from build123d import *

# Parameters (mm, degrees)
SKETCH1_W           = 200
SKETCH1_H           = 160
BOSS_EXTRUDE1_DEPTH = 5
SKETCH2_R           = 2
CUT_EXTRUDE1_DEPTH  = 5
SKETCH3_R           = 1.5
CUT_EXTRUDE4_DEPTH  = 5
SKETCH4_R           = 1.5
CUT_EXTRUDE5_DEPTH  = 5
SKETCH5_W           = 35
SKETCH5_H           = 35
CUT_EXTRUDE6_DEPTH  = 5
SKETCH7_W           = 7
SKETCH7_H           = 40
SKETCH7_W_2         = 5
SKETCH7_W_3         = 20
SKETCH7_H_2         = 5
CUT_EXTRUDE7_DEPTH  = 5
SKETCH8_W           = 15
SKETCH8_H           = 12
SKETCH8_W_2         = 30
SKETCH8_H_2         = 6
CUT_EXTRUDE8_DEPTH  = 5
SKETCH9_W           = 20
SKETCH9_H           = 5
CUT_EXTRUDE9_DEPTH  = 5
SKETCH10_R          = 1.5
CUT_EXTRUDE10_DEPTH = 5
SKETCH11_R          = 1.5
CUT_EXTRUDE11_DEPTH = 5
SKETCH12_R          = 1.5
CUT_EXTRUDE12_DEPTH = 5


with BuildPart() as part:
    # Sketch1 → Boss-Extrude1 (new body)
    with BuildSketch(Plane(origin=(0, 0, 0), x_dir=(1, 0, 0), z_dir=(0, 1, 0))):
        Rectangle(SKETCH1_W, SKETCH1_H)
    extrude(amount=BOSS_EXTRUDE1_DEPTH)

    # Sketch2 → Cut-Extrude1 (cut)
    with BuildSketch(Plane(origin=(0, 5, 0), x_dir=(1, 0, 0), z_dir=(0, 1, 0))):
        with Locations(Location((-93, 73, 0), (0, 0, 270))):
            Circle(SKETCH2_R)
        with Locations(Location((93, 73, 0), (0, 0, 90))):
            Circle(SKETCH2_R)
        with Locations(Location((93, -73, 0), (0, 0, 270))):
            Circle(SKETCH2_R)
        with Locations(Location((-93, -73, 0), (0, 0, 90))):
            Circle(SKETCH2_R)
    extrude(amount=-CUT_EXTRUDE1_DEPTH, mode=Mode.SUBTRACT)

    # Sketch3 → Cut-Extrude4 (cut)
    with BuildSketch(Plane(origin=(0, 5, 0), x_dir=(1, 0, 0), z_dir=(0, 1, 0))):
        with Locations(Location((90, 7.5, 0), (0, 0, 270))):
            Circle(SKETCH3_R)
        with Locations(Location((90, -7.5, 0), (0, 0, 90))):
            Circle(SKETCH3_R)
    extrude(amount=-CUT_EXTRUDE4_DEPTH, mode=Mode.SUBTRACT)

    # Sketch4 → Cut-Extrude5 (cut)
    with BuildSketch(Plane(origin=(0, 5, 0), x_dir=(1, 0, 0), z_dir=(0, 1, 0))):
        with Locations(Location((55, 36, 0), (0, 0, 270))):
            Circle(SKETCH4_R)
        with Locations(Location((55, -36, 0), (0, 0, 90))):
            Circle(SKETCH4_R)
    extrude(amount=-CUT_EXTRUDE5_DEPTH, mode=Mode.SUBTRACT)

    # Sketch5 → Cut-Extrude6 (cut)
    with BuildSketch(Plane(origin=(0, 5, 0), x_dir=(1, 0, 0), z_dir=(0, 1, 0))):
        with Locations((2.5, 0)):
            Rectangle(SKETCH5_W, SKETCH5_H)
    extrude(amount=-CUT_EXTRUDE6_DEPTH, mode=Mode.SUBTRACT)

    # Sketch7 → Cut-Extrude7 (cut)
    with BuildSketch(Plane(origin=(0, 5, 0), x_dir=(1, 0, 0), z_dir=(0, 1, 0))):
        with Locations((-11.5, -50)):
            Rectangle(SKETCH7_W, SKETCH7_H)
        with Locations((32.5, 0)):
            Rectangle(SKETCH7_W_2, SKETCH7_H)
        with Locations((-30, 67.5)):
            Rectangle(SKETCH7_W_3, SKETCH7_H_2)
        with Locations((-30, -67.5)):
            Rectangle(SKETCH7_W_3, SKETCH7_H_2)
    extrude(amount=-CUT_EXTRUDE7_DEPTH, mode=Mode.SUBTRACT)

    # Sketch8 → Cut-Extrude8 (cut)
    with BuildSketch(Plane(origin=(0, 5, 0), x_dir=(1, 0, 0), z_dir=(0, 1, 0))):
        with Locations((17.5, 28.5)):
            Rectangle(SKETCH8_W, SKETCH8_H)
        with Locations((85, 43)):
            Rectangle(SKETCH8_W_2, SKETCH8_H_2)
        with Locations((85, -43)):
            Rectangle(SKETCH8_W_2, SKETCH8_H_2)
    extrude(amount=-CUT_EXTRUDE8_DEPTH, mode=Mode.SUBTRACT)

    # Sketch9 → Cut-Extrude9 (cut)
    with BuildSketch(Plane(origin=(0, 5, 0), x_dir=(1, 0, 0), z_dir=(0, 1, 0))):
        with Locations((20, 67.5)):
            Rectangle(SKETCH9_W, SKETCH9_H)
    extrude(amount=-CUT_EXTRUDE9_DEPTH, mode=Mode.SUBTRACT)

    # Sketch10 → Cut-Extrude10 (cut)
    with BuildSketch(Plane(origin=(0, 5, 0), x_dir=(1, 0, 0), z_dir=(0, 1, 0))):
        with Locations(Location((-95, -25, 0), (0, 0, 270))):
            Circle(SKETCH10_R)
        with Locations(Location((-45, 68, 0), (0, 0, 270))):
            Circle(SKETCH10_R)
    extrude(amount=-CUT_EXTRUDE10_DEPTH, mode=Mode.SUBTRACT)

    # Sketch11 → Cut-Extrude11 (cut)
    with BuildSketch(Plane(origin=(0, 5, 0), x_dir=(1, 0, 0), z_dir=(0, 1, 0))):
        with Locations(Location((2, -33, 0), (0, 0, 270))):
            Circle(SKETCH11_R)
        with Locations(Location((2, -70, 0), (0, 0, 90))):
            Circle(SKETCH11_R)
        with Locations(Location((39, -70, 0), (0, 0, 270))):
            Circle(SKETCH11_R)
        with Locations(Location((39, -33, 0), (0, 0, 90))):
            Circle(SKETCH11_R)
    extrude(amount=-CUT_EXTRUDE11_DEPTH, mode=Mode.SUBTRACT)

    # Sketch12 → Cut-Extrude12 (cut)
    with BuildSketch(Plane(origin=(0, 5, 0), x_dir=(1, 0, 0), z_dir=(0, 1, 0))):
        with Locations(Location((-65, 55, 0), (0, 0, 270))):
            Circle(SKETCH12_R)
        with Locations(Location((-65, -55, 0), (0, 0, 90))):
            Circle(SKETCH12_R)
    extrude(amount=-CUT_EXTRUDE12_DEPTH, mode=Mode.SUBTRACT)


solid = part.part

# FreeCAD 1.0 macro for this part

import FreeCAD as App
import Part
import Sketcher


def add_polygon(sketch, points):
    """Adds a closed chain of lines whose ends are joined by coincident constraints."""
    first, n = sketch.GeometryCount, len(points)
    for a, b in zip(points, points[1:] + points[:1]):
        sketch.addGeometry(Part.LineSegment(App.Vector(*a, 0), App.Vector(*b, 0)), False)
    for i in range(n):
        sketch.addConstraint(Sketcher.Constraint("Coincident", first + i, 2, first + (i + 1) % n, 1))

doc = App.newDocument("Part")
body = doc.addObject("PartDesign::Body", "Body")

# Sketch on XZ plane
sketch1 = body.newObject("Sketcher::SketchObject", "Sketch")
sketch1.AttachmentSupport = (doc.getObject("XZ_Plane"), [""])
sketch1.MapMode = "FlatFace"
add_polygon(sketch1, [(-100, -80), (-100, 80), (100, 80), (100, -80)])  # lines 0-3
sketch1.addConstraint(Sketcher.Constraint("Vertical", 0))
sketch1.addConstraint(Sketcher.Constraint("Horizontal", 1))
sketch1.addConstraint(Sketcher.Constraint("Vertical", 2))
sketch1.addConstraint(Sketcher.Constraint("Horizontal", 3))
sketch1.addConstraint(Sketcher.Constraint("Symmetric", 0, 2, 2, 2, -1, 1))
sketch1.addConstraint(Sketcher.Constraint("DistanceX", 1, 1, 1, 2, 200.0))
sketch1.addConstraint(Sketcher.Constraint("DistanceY", 0, 1, 0, 2, 160.0))
pad1 = body.newObject("PartDesign::Pad", "Pad")
pad1.Profile = sketch1
pad1.Length = 5
pad1.Reversed = True

# Sketch on XZ plane
sketch2 = body.newObject("Sketcher::SketchObject", "Sketch001")
sketch2.AttachmentSupport = (doc.getObject("XZ_Plane"), [""])
sketch2.MapMode = "FlatFace"
sketch2.AttachmentOffset = App.Placement(App.Vector(0, 0, -5), App.Rotation())
sketch2.addGeometry(Part.Circle(App.Vector(-93, -73, 0), App.Vector(0, 0, 1), 2), False)
sketch2.addGeometry(Part.Circle(App.Vector(93, -73, 0), App.Vector(0, 0, 1), 2), False)
sketch2.addGeometry(Part.Circle(App.Vector(93, 73, 0), App.Vector(0, 0, 1), 2), False)
sketch2.addGeometry(Part.Circle(App.Vector(-93, 73, 0), App.Vector(0, 0, 1), 2), False)
sketch2.addConstraint(Sketcher.Constraint("Equal", 0, 1))
sketch2.addConstraint(Sketcher.Constraint("Equal", 1, 2))
sketch2.addConstraint(Sketcher.Constraint("Equal", 2, 3))
sketch2.addConstraint(Sketcher.Constraint("Symmetric", 0, 3, 2, 3, -1, 1))
sketch2.addConstraint(Sketcher.Constraint("Symmetric", 1, 3, 3, 3, -1, 1))
sketch2.addConstraint(Sketcher.Constraint("Symmetric", 0, 3, 1, 3, -2))
sketch2.addConstraint(Sketcher.Constraint("Diameter", 0, 4.0))
sketch2.addConstraint(Sketcher.Constraint("DistanceX", 0, 3, -1, 1, 93.0))
sketch2.addConstraint(Sketcher.Constraint("DistanceY", 0, 3, -1, 1, 73.0))
pocket1 = body.newObject("PartDesign::Pocket", "Pocket")
pocket1.Profile = sketch2
pocket1.Length = 5
pocket1.Reversed = True

# Sketch on XZ plane
sketch3 = body.newObject("Sketcher::SketchObject", "Sketch002")
sketch3.AttachmentSupport = (doc.getObject("XZ_Plane"), [""])
sketch3.MapMode = "FlatFace"
sketch3.AttachmentOffset = App.Placement(App.Vector(0, 0, -5), App.Rotation())
sketch3.addGeometry(Part.Circle(App.Vector(90, -7.5, 0), App.Vector(0, 0, 1), 1.5), False)
sketch3.addGeometry(Part.Circle(App.Vector(90, 7.5, 0), App.Vector(0, 0, 1), 1.5), False)
sketch3.addConstraint(Sketcher.Constraint("Equal", 0, 1))
sketch3.addConstraint(Sketcher.Constraint("Symmetric", 0, 3, 1, 3, -1))
sketch3.addConstraint(Sketcher.Constraint("Diameter", 0, 3.0))
sketch3.addConstraint(Sketcher.Constraint("DistanceX", -1, 1, 0, 3, 90.0))
sketch3.addConstraint(Sketcher.Constraint("DistanceY", 0, 3, 1, 3, 15.0))
pocket2 = body.newObject("PartDesign::Pocket", "Pocket001")
pocket2.Profile = sketch3
pocket2.Length = 5
pocket2.Reversed = True

# Sketch on XZ plane
sketch4 = body.newObject("Sketcher::SketchObject", "Sketch003")
sketch4.AttachmentSupport = (doc.getObject("XZ_Plane"), [""])
sketch4.MapMode = "FlatFace"
sketch4.AttachmentOffset = App.Placement(App.Vector(0, 0, -5), App.Rotation())
sketch4.addGeometry(Part.Circle(App.Vector(55, -36, 0), App.Vector(0, 0, 1), 1.5), False)
sketch4.addGeometry(Part.Circle(App.Vector(55, 36, 0), App.Vector(0, 0, 1), 1.5), False)
sketch4.addConstraint(Sketcher.Constraint("Equal", 0, 1))
sketch4.addConstraint(Sketcher.Constraint("Symmetric", 0, 3, 1, 3, -1))
sketch4.addConstraint(Sketcher.Constraint("Diameter", 0, 3.0))
sketch4.addConstraint(Sketcher.Constraint("DistanceX", -1, 1, 0, 3, 55.0))
sketch4.addConstraint(Sketcher.Constraint("DistanceY", 0, 3, -1, 1, 36.0))
pocket3 = body.newObject("PartDesign::Pocket", "Pocket002")
pocket3.Profile = sketch4
pocket3.Length = 5
pocket3.Reversed = True

# Sketch on XZ plane
sketch5 = body.newObject("Sketcher::SketchObject", "Sketch004")
sketch5.AttachmentSupport = (doc.getObject("XZ_Plane"), [""])
sketch5.MapMode = "FlatFace"
sketch5.AttachmentOffset = App.Placement(App.Vector(0, 0, -5), App.Rotation())
add_polygon(sketch5, [(-15, -18), (-15, 18), (20, 18), (20, -18)])  # lines 0-3
sketch5.addConstraint(Sketcher.Constraint("Vertical", 0))
sketch5.addConstraint(Sketcher.Constraint("Horizontal", 1))
sketch5.addConstraint(Sketcher.Constraint("Vertical", 2))
sketch5.addConstraint(Sketcher.Constraint("Horizontal", 3))
sketch5.addConstraint(Sketcher.Constraint("Equal", 3, 0))
sketch5.addConstraint(Sketcher.Constraint("DistanceX", 1, 1, 1, 2, 35.0))
sketch5.addConstraint(Sketcher.Constraint("DistanceX", 0, 2, -1, 1, 15.0))
sketch5.addConstraint(Sketcher.Constraint("DistanceY", -1, 1, 0, 2, 17.5))
pocket4 = body.newObject("PartDesign::Pocket", "Pocket003")
pocket4.Profile = sketch5
pocket4.Length = 5
pocket4.Reversed = True

# Sketch on XZ plane
sketch6 = body.newObject("Sketcher::SketchObject", "Sketch005")
sketch6.AttachmentSupport = (doc.getObject("XZ_Plane"), [""])
sketch6.MapMode = "FlatFace"
sketch6.AttachmentOffset = App.Placement(App.Vector(0, 0, -5), App.Rotation())
add_polygon(sketch6, [(-15, 30), (-15, 70), (-8, 70), (-8, 30)])  # lines 0-3
add_polygon(sketch6, [(30, -20), (30, 20), (35, 20), (35, -20)])  # lines 4-7
add_polygon(sketch6, [(-40, -70), (-40, -65), (-20, -65), (-20, -70)])  # lines 8-11
add_polygon(sketch6, [(-40, 65), (-40, 70), (-20, 70), (-20, 65)])  # lines 12-15
sketch6.addConstraint(Sketcher.Constraint("Vertical", 0))
sketch6.addConstraint(Sketcher.Constraint("Horizontal", 1))
sketch6.addConstraint(Sketcher.Constraint("Vertical", 2))
sketch6.addConstraint(Sketcher.Constraint("Horizontal", 3))
sketch6.addConstraint(Sketcher.Constraint("Vertical", 4))
sketch6.addConstraint(Sketcher.Constraint("Horizontal", 5))
sketch6.addConstraint(Sketcher.Constraint("Vertical", 6))
sketch6.addConstraint(Sketcher.Constraint("Horizontal", 7))
sketch6.addConstraint(Sketcher.Constraint("Vertical", 8))
sketch6.addConstraint(Sketcher.Constraint("Horizontal", 9))
sketch6.addConstraint(Sketcher.Constraint("Vertical", 10))
sketch6.addConstraint(Sketcher.Constraint("Horizontal", 11))
sketch6.addConstraint(Sketcher.Constraint("Vertical", 12))
sketch6.addConstraint(Sketcher.Constraint("Horizontal", 13))
sketch6.addConstraint(Sketcher.Constraint("Vertical", 14))
sketch6.addConstraint(Sketcher.Constraint("Horizontal", 15))
sketch6.addConstraint(Sketcher.Constraint("Symmetric", 11, 2, 12, 2, -1))
sketch6.addConstraint(Sketcher.Constraint("Symmetric", 9, 2, 14, 2, -1))
sketch6.addConstraint(Sketcher.Constraint("Horizontal", 1, 2, 12, 2))
sketch6.addConstraint(Sketcher.Constraint("Equal", 2, 4))
sketch6.addConstraint(Sketcher.Constraint("Equal", 7, 8))
sketch6.addConstraint(Sketcher.Constraint("DistanceX", 1, 1, 1, 2, 7.0))
sketch6.addConstraint(Sketcher.Constraint("DistanceX", 5, 1, 5, 2, 5.0))
sketch6.addConstraint(Sketcher.Constraint("DistanceX", 9, 1, 9, 2, 20.0))
sketch6.addConstraint(Sketcher.Constraint("DistanceY", 0, 1, 0, 2, 40.0))
sketch6.addConstraint(Sketcher.Constraint("DistanceX", 0, 2, -1, 1, 15.0))
sketch6.addConstraint(Sketcher.Constraint("DistanceY", -1, 1, 0, 2, 70.0))
sketch6.addConstraint(Sketcher.Constraint("DistanceX", -1, 1, 4, 2, 30.0))
sketch6.addConstraint(Sketcher.Constraint("DistanceY", -1, 1, 4, 2, 20.0))
sketch6.addConstraint(Sketcher.Constraint("DistanceX", 8, 2, -1, 1, 40.0))
pocket5 = body.newObject("PartDesign::Pocket", "Pocket004")
pocket5.Profile = sketch6
pocket5.Length = 5
pocket5.Reversed = True

# Sketch on XZ plane
sketch7 = body.newObject("Sketcher::SketchObject", "Sketch006")
sketch7.AttachmentSupport = (doc.getObject("XZ_Plane"), [""])
sketch7.MapMode = "FlatFace"
sketch7.AttachmentOffset = App.Placement(App.Vector(0, 0, -5), App.Rotation())
add_polygon(sketch7, [(10, -34), (10, -22), (25, -22), (25, -34)])  # lines 0-3
add_polygon(sketch7, [(70, -46), (70, -40), (100, -40), (100, -46)])  # lines 4-7
add_polygon(sketch7, [(70, 40), (70, 46), (100, 46), (100, 40)])  # lines 8-11
sketch7.addConstraint(Sketcher.Constraint("Vertical", 0))
sketch7.addConstraint(Sketcher.Constraint("Horizontal", 1))
sketch7.addConstraint(Sketcher.Constraint("Vertical", 2))
sketch7.addConstraint(Sketcher.Constraint("Horizontal", 3))
sketch7.addConstraint(Sketcher.Constraint("Vertical", 4))
sketch7.addConstraint(Sketcher.Constraint("Horizontal", 5))
sketch7.addConstraint(Sketcher.Constraint("Vertical", 6))
sketch7.addConstraint(Sketcher.Constraint("Horizontal", 7))
sketch7.addConstraint(Sketcher.Constraint("Vertical", 8))
sketch7.addConstraint(Sketcher.Constraint("Horizontal", 9))
sketch7.addConstraint(Sketcher.Constraint("Vertical", 10))
sketch7.addConstraint(Sketcher.Constraint("Horizontal", 11))
sketch7.addConstraint(Sketcher.Constraint("Symmetric", 7, 2, 8, 2, -1))
sketch7.addConstraint(Sketcher.Constraint("Symmetric", 5, 2, 10, 2, -1))
sketch7.addConstraint(Sketcher.Constraint("DistanceX", 1, 1, 1, 2, 15.0))
sketch7.addConstraint(Sketcher.Constraint("DistanceX", 5, 1, 5, 2, 30.0))
sketch7.addConstraint(Sketcher.Constraint("DistanceY", 0, 1, 0, 2, 12.0))
sketch7.addConstraint(Sketcher.Constraint("DistanceY", 4, 1, 4, 2, 6.0))
sketch7.addConstraint(Sketcher.Constraint("DistanceX", -1, 1, 0, 2, 10.0))
sketch7.addConstraint(Sketcher.Constraint("DistanceX", -1, 1, 4, 2, 70.0))
sketch7.addConstraint(Sketcher.Constraint("DistanceY", 4, 2, -1, 1, 40.0))
sketch7.addConstraint(Sketcher.Constraint("DistanceY", 0, 2, -1, 1, 22.5))
pocket6 = body.newObject("PartDesign::Pocket", "Pocket005")
pocket6.Profile = sketch7
pocket6.Length = 5
pocket6.Reversed = True

# Sketch on XZ plane
sketch8 = body.newObject("Sketcher::SketchObject", "Sketch007")
sketch8.AttachmentSupport = (doc.getObject("XZ_Plane"), [""])
sketch8.MapMode = "FlatFace"
sketch8.AttachmentOffset = App.Placement(App.Vector(0, 0, -5), App.Rotation())
add_polygon(sketch8, [(10, -70), (10, -65), (30, -65), (30, -70)])  # lines 0-3
sketch8.addConstraint(Sketcher.Constraint("Vertical", 0))
sketch8.addConstraint(Sketcher.Constraint("Horizontal", 1))
sketch8.addConstraint(Sketcher.Constraint("Vertical", 2))
sketch8.addConstraint(Sketcher.Constraint("Horizontal", 3))
sketch8.addConstraint(Sketcher.Constraint("DistanceX", 1, 1, 1, 2, 20.0))
sketch8.addConstraint(Sketcher.Constraint("DistanceY", 0, 1, 0, 2, 5.0))
sketch8.addConstraint(Sketcher.Constraint("DistanceX", -1, 1, 0, 2, 10.0))
sketch8.addConstraint(Sketcher.Constraint("DistanceY", 0, 2, -1, 1, 65.0))
pocket7 = body.newObject("PartDesign::Pocket", "Pocket006")
pocket7.Profile = sketch8
pocket7.Length = 5
pocket7.Reversed = True

# Sketch on XZ plane
sketch9 = body.newObject("Sketcher::SketchObject", "Sketch008")
sketch9.AttachmentSupport = (doc.getObject("XZ_Plane"), [""])
sketch9.MapMode = "FlatFace"
sketch9.AttachmentOffset = App.Placement(App.Vector(0, 0, -5), App.Rotation())
sketch9.addGeometry(Part.Circle(App.Vector(-95, 25, 0), App.Vector(0, 0, 1), 1.5), False)
sketch9.addGeometry(Part.Circle(App.Vector(-45, -68, 0), App.Vector(0, 0, 1), 1.5), False)
sketch9.addConstraint(Sketcher.Constraint("Equal", 0, 1))
sketch9.addConstraint(Sketcher.Constraint("Diameter", 0, 3.0))
sketch9.addConstraint(Sketcher.Constraint("DistanceX", 0, 3, -1, 1, 95.0))
sketch9.addConstraint(Sketcher.Constraint("DistanceY", -1, 1, 0, 3, 25.0))
sketch9.addConstraint(Sketcher.Constraint("DistanceX", 1, 3, -1, 1, 45.0))
sketch9.addConstraint(Sketcher.Constraint("DistanceY", 1, 3, -1, 1, 68.0))
pocket8 = body.newObject("PartDesign::Pocket", "Pocket007")
pocket8.Profile = sketch9
pocket8.Length = 5
pocket8.Reversed = True

# Sketch on XZ plane
sketch10 = body.newObject("Sketcher::SketchObject", "Sketch009")
sketch10.AttachmentSupport = (doc.getObject("XZ_Plane"), [""])
sketch10.MapMode = "FlatFace"
sketch10.AttachmentOffset = App.Placement(App.Vector(0, 0, -5), App.Rotation())
sketch10.addGeometry(Part.Circle(App.Vector(2, 33, 0), App.Vector(0, 0, 1), 1.5), False)
sketch10.addGeometry(Part.Circle(App.Vector(2, 70, 0), App.Vector(0, 0, 1), 1.5), False)
sketch10.addGeometry(Part.Circle(App.Vector(39, 70, 0), App.Vector(0, 0, 1), 1.5), False)
sketch10.addGeometry(Part.Circle(App.Vector(39, 33, 0), App.Vector(0, 0, 1), 1.5), False)
sketch10.addConstraint(Sketcher.Constraint("Equal", 0, 1))
sketch10.addConstraint(Sketcher.Constraint("Equal", 1, 2))
sketch10.addConstraint(Sketcher.Constraint("Equal", 2, 3))
sketch10.addConstraint(Sketcher.Constraint("Horizontal", 1, 3, 2, 3))
sketch10.addConstraint(Sketcher.Constraint("Horizontal", 0, 3, 3, 3))
sketch10.addConstraint(Sketcher.Constraint("Vertical", 0, 3, 1, 3))
sketch10.addConstraint(Sketcher.Constraint("Vertical", 2, 3, 3, 3))
sketch10.addConstraint(Sketcher.Constraint("Diameter", 0, 3.0))
sketch10.addConstraint(Sketcher.Constraint("DistanceX", -1, 1, 0, 3, 2.0))
sketch10.addConstraint(Sketcher.Constraint("DistanceY", -1, 1, 0, 3, 33.0))
sketch10.addConstraint(Sketcher.Constraint("DistanceY", -1, 1, 1, 3, 70.0))
sketch10.addConstraint(Sketcher.Constraint("DistanceX", -1, 1, 2, 3, 39.0))
pocket9 = body.newObject("PartDesign::Pocket", "Pocket008")
pocket9.Profile = sketch10
pocket9.Length = 5
pocket9.Reversed = True

# Sketch on XZ plane
sketch11 = body.newObject("Sketcher::SketchObject", "Sketch010")
sketch11.AttachmentSupport = (doc.getObject("XZ_Plane"), [""])
sketch11.MapMode = "FlatFace"
sketch11.AttachmentOffset = App.Placement(App.Vector(0, 0, -5), App.Rotation())
sketch11.addGeometry(Part.Circle(App.Vector(-65, -55, 0), App.Vector(0, 0, 1), 1.5), False)
sketch11.addGeometry(Part.Circle(App.Vector(-65, 55, 0), App.Vector(0, 0, 1), 1.5), False)
sketch11.addConstraint(Sketcher.Constraint("Equal", 0, 1))
sketch11.addConstraint(Sketcher.Constraint("Symmetric", 0, 3, 1, 3, -1))
sketch11.addConstraint(Sketcher.Constraint("Diameter", 0, 3.0))
sketch11.addConstraint(Sketcher.Constraint("DistanceX", 0, 3, -1, 1, 65.0))
sketch11.addConstraint(Sketcher.Constraint("DistanceY", 0, 3, -1, 1, 55.0))
pocket10 = body.newObject("PartDesign::Pocket", "Pocket009")
pocket10.Profile = sketch11
pocket10.Length = 5
pocket10.Reversed = True

doc.recompute()
